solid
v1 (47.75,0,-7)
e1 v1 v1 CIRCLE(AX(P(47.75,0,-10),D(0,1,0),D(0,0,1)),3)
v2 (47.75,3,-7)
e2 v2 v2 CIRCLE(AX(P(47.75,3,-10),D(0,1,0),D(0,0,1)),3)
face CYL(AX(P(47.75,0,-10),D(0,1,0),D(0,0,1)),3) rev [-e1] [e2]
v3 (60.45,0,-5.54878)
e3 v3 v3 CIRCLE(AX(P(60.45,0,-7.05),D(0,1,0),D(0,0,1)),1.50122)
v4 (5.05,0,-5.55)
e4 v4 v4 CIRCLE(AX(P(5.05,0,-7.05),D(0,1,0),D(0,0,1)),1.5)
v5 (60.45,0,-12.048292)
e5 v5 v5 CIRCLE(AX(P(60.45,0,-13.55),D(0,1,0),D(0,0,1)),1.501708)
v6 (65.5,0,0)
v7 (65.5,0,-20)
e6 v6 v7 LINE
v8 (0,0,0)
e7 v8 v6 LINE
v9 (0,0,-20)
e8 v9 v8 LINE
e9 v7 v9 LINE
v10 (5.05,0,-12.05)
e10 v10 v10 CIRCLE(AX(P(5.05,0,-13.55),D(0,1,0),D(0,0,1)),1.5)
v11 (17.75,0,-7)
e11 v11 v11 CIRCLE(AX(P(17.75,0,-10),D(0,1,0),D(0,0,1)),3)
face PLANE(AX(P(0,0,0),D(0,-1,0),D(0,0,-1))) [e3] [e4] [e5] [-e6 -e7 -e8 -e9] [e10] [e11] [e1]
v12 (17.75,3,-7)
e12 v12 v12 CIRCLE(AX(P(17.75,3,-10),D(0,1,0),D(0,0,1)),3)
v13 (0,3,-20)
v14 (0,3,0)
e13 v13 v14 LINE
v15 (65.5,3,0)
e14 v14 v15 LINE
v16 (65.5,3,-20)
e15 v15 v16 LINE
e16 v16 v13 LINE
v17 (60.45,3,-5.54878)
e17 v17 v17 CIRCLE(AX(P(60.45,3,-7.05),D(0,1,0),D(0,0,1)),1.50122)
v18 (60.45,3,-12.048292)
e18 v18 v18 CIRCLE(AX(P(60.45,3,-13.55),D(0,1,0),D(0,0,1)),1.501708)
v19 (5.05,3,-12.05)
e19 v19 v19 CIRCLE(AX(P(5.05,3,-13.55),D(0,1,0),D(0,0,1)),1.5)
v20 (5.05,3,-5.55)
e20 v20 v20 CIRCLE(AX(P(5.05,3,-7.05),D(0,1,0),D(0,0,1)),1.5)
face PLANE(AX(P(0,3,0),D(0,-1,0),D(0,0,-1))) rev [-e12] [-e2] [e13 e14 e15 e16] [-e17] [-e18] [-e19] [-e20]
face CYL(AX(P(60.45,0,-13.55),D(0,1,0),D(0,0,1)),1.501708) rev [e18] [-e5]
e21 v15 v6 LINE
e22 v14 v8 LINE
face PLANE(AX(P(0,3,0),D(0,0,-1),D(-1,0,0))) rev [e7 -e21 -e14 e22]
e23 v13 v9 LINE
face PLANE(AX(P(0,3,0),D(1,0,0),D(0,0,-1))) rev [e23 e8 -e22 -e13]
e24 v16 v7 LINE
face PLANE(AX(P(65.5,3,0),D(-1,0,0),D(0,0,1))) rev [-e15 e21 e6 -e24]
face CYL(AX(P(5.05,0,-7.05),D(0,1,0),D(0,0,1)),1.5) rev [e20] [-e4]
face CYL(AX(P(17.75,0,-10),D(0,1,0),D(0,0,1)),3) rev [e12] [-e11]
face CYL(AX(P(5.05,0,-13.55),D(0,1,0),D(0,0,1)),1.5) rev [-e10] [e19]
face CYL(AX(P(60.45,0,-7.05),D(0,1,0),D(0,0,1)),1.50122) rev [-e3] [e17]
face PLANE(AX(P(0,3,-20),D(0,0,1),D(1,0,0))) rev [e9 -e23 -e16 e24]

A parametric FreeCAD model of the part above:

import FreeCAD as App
import Part
import Sketcher

V = App.Vector
Q = App.Units.Quantity

doc = App.newDocument("Part")
body = doc.addObject("PartDesign::Body", "Body")

# Sketch on XZ plane
sketch1 = doc.addObject("Sketcher::SketchObject", "Sketch")
body.addObject(sketch1)
sketch1.AttachmentSupport = (doc.XZ_Plane, [""])
sketch1.MapMode = "FlatFace"
sketch1.addGeometry(Part.LineSegment(V(0, -20, 0), V(0, 0, 0)), False)
sketch1.addGeometry(Part.LineSegment(V(0, 0, 0), V(66, 0, 0)), False)
sketch1.addGeometry(Part.LineSegment(V(66, 0, 0), V(66, -20, 0)), False)
sketch1.addGeometry(Part.LineSegment(V(66, -20, 0), V(0, -20, 0)), False)
sketch1.addConstraint(Sketcher.Constraint("Coincident", 0, 2, 1, 1))
sketch1.addConstraint(Sketcher.Constraint("Coincident", 1, 2, 2, 1))
sketch1.addConstraint(Sketcher.Constraint("Coincident", 2, 2, 3, 1))
sketch1.addConstraint(Sketcher.Constraint("Coincident", 3, 2, 0, 1))
sketch1.addConstraint(Sketcher.Constraint("Vertical", 0))
sketch1.addConstraint(Sketcher.Constraint("Horizontal", 1))
sketch1.addConstraint(Sketcher.Constraint("Vertical", 2))
sketch1.addConstraint(Sketcher.Constraint("Horizontal", 3))
sketch1.addConstraint(Sketcher.Constraint("Coincident", 0, 2, -1, 1))
sketch1.addConstraint(Sketcher.Constraint("DistanceY", 0, 1, 0, 2, Q("20 mm")))
sketch1.addConstraint(Sketcher.Constraint("DistanceX", 1, 1, 1, 2, Q("65.5 mm")))
pad1 = doc.addObject("PartDesign::Pad", "Pad")
body.addObject(pad1)
pad1.Profile = sketch1
pad1.Length = 3
pad1.Reversed = True

# Sketch on XZ plane
sketch2 = doc.addObject("Sketcher::SketchObject", "Sketch001")
body.addObject(sketch2)
sketch2.AttachmentSupport = (doc.XZ_Plane, [""])
sketch2.MapMode = "FlatFace"
sketch2.AttachmentOffset = App.Placement(V(0, 0, -3), App.Rotation())
sketch2.addGeometry(Part.Circle(V(60.5, -13.6, 0), V(0, 0, 1), 1.5), False)
sketch2.addGeometry(Part.Circle(V(60.5, -7, 0), V(0, 0, 1), 1.5), False)
sketch2.addGeometry(Part.Circle(V(5, -13.6, 0), V(0, 0, 1), 1.5), False)
sketch2.addGeometry(Part.Circle(V(5, -7, 0), V(0, 0, 1), 1.5), False)
sketch2.addGeometry(Part.Circle(V(47.8, -10, 0), V(0, 0, 1), 3), False)
sketch2.addGeometry(Part.Circle(V(17.8, -10, 0), V(0, 0, 1), 3), False)
sketch2.addConstraint(Sketcher.Constraint("Equal", 2, 3))
sketch2.addConstraint(Sketcher.Constraint("Equal", 4, 5))
sketch2.addConstraint(Sketcher.Constraint("Horizontal", 0, 3, 2, 3))
sketch2.addConstraint(Sketcher.Constraint("Horizontal", 1, 3, 3, 3))
sketch2.addConstraint(Sketcher.Constraint("Horizontal", 4, 3, 5, 3))
sketch2.addConstraint(Sketcher.Constraint("Vertical", 0, 3, 1, 3))
sketch2.addConstraint(Sketcher.Constraint("Vertical", 2, 3, 3, 3))
sketch2.addConstraint(Sketcher.Constraint("Diameter", 2, Q("3 mm")))
sketch2.addConstraint(Sketcher.Constraint("Diameter", 4, Q("6 mm")))
sketch2.addConstraint(Sketcher.Constraint("DistanceY", 4, 3, -1, 1, Q("10 mm")))
sketch2.addConstraint(Sketcher.Constraint("DistanceX", 5, 3, 4, 3, Q("30 mm")))
sketch2.addConstraint(Sketcher.Constraint("DistanceY", 0, 3, 1, 3, Q("6.5 mm")))
sketch2.addConstraint(Sketcher.Constraint("DistanceX", 2, 3, 0, 3, Q("55.4 mm")))
sketch2.addConstraint(Sketcher.Constraint("DistanceX", 4, 3, 1, 3, Q("12.7 mm")))
sketch2.addConstraint(Sketcher.Constraint("Diameter", 1, Q("3.002441 mm")))
sketch2.addConstraint(Sketcher.Constraint("DistanceX", -1, 1, 0, 3, Q("60.45 mm")))
sketch2.addConstraint(Sketcher.Constraint("DistanceY", 0, 3, -1, 1, Q("13.55 mm")))
sketch2.addConstraint(Sketcher.Constraint("Diameter", 0, Q("3.003417 mm")))
pocket1 = doc.addObject("PartDesign::Pocket", "Pocket")
body.addObject(pocket1)
pocket1.Profile = sketch2
pocket1.Length = 3
pocket1.Reversed = True

doc.recompute()
